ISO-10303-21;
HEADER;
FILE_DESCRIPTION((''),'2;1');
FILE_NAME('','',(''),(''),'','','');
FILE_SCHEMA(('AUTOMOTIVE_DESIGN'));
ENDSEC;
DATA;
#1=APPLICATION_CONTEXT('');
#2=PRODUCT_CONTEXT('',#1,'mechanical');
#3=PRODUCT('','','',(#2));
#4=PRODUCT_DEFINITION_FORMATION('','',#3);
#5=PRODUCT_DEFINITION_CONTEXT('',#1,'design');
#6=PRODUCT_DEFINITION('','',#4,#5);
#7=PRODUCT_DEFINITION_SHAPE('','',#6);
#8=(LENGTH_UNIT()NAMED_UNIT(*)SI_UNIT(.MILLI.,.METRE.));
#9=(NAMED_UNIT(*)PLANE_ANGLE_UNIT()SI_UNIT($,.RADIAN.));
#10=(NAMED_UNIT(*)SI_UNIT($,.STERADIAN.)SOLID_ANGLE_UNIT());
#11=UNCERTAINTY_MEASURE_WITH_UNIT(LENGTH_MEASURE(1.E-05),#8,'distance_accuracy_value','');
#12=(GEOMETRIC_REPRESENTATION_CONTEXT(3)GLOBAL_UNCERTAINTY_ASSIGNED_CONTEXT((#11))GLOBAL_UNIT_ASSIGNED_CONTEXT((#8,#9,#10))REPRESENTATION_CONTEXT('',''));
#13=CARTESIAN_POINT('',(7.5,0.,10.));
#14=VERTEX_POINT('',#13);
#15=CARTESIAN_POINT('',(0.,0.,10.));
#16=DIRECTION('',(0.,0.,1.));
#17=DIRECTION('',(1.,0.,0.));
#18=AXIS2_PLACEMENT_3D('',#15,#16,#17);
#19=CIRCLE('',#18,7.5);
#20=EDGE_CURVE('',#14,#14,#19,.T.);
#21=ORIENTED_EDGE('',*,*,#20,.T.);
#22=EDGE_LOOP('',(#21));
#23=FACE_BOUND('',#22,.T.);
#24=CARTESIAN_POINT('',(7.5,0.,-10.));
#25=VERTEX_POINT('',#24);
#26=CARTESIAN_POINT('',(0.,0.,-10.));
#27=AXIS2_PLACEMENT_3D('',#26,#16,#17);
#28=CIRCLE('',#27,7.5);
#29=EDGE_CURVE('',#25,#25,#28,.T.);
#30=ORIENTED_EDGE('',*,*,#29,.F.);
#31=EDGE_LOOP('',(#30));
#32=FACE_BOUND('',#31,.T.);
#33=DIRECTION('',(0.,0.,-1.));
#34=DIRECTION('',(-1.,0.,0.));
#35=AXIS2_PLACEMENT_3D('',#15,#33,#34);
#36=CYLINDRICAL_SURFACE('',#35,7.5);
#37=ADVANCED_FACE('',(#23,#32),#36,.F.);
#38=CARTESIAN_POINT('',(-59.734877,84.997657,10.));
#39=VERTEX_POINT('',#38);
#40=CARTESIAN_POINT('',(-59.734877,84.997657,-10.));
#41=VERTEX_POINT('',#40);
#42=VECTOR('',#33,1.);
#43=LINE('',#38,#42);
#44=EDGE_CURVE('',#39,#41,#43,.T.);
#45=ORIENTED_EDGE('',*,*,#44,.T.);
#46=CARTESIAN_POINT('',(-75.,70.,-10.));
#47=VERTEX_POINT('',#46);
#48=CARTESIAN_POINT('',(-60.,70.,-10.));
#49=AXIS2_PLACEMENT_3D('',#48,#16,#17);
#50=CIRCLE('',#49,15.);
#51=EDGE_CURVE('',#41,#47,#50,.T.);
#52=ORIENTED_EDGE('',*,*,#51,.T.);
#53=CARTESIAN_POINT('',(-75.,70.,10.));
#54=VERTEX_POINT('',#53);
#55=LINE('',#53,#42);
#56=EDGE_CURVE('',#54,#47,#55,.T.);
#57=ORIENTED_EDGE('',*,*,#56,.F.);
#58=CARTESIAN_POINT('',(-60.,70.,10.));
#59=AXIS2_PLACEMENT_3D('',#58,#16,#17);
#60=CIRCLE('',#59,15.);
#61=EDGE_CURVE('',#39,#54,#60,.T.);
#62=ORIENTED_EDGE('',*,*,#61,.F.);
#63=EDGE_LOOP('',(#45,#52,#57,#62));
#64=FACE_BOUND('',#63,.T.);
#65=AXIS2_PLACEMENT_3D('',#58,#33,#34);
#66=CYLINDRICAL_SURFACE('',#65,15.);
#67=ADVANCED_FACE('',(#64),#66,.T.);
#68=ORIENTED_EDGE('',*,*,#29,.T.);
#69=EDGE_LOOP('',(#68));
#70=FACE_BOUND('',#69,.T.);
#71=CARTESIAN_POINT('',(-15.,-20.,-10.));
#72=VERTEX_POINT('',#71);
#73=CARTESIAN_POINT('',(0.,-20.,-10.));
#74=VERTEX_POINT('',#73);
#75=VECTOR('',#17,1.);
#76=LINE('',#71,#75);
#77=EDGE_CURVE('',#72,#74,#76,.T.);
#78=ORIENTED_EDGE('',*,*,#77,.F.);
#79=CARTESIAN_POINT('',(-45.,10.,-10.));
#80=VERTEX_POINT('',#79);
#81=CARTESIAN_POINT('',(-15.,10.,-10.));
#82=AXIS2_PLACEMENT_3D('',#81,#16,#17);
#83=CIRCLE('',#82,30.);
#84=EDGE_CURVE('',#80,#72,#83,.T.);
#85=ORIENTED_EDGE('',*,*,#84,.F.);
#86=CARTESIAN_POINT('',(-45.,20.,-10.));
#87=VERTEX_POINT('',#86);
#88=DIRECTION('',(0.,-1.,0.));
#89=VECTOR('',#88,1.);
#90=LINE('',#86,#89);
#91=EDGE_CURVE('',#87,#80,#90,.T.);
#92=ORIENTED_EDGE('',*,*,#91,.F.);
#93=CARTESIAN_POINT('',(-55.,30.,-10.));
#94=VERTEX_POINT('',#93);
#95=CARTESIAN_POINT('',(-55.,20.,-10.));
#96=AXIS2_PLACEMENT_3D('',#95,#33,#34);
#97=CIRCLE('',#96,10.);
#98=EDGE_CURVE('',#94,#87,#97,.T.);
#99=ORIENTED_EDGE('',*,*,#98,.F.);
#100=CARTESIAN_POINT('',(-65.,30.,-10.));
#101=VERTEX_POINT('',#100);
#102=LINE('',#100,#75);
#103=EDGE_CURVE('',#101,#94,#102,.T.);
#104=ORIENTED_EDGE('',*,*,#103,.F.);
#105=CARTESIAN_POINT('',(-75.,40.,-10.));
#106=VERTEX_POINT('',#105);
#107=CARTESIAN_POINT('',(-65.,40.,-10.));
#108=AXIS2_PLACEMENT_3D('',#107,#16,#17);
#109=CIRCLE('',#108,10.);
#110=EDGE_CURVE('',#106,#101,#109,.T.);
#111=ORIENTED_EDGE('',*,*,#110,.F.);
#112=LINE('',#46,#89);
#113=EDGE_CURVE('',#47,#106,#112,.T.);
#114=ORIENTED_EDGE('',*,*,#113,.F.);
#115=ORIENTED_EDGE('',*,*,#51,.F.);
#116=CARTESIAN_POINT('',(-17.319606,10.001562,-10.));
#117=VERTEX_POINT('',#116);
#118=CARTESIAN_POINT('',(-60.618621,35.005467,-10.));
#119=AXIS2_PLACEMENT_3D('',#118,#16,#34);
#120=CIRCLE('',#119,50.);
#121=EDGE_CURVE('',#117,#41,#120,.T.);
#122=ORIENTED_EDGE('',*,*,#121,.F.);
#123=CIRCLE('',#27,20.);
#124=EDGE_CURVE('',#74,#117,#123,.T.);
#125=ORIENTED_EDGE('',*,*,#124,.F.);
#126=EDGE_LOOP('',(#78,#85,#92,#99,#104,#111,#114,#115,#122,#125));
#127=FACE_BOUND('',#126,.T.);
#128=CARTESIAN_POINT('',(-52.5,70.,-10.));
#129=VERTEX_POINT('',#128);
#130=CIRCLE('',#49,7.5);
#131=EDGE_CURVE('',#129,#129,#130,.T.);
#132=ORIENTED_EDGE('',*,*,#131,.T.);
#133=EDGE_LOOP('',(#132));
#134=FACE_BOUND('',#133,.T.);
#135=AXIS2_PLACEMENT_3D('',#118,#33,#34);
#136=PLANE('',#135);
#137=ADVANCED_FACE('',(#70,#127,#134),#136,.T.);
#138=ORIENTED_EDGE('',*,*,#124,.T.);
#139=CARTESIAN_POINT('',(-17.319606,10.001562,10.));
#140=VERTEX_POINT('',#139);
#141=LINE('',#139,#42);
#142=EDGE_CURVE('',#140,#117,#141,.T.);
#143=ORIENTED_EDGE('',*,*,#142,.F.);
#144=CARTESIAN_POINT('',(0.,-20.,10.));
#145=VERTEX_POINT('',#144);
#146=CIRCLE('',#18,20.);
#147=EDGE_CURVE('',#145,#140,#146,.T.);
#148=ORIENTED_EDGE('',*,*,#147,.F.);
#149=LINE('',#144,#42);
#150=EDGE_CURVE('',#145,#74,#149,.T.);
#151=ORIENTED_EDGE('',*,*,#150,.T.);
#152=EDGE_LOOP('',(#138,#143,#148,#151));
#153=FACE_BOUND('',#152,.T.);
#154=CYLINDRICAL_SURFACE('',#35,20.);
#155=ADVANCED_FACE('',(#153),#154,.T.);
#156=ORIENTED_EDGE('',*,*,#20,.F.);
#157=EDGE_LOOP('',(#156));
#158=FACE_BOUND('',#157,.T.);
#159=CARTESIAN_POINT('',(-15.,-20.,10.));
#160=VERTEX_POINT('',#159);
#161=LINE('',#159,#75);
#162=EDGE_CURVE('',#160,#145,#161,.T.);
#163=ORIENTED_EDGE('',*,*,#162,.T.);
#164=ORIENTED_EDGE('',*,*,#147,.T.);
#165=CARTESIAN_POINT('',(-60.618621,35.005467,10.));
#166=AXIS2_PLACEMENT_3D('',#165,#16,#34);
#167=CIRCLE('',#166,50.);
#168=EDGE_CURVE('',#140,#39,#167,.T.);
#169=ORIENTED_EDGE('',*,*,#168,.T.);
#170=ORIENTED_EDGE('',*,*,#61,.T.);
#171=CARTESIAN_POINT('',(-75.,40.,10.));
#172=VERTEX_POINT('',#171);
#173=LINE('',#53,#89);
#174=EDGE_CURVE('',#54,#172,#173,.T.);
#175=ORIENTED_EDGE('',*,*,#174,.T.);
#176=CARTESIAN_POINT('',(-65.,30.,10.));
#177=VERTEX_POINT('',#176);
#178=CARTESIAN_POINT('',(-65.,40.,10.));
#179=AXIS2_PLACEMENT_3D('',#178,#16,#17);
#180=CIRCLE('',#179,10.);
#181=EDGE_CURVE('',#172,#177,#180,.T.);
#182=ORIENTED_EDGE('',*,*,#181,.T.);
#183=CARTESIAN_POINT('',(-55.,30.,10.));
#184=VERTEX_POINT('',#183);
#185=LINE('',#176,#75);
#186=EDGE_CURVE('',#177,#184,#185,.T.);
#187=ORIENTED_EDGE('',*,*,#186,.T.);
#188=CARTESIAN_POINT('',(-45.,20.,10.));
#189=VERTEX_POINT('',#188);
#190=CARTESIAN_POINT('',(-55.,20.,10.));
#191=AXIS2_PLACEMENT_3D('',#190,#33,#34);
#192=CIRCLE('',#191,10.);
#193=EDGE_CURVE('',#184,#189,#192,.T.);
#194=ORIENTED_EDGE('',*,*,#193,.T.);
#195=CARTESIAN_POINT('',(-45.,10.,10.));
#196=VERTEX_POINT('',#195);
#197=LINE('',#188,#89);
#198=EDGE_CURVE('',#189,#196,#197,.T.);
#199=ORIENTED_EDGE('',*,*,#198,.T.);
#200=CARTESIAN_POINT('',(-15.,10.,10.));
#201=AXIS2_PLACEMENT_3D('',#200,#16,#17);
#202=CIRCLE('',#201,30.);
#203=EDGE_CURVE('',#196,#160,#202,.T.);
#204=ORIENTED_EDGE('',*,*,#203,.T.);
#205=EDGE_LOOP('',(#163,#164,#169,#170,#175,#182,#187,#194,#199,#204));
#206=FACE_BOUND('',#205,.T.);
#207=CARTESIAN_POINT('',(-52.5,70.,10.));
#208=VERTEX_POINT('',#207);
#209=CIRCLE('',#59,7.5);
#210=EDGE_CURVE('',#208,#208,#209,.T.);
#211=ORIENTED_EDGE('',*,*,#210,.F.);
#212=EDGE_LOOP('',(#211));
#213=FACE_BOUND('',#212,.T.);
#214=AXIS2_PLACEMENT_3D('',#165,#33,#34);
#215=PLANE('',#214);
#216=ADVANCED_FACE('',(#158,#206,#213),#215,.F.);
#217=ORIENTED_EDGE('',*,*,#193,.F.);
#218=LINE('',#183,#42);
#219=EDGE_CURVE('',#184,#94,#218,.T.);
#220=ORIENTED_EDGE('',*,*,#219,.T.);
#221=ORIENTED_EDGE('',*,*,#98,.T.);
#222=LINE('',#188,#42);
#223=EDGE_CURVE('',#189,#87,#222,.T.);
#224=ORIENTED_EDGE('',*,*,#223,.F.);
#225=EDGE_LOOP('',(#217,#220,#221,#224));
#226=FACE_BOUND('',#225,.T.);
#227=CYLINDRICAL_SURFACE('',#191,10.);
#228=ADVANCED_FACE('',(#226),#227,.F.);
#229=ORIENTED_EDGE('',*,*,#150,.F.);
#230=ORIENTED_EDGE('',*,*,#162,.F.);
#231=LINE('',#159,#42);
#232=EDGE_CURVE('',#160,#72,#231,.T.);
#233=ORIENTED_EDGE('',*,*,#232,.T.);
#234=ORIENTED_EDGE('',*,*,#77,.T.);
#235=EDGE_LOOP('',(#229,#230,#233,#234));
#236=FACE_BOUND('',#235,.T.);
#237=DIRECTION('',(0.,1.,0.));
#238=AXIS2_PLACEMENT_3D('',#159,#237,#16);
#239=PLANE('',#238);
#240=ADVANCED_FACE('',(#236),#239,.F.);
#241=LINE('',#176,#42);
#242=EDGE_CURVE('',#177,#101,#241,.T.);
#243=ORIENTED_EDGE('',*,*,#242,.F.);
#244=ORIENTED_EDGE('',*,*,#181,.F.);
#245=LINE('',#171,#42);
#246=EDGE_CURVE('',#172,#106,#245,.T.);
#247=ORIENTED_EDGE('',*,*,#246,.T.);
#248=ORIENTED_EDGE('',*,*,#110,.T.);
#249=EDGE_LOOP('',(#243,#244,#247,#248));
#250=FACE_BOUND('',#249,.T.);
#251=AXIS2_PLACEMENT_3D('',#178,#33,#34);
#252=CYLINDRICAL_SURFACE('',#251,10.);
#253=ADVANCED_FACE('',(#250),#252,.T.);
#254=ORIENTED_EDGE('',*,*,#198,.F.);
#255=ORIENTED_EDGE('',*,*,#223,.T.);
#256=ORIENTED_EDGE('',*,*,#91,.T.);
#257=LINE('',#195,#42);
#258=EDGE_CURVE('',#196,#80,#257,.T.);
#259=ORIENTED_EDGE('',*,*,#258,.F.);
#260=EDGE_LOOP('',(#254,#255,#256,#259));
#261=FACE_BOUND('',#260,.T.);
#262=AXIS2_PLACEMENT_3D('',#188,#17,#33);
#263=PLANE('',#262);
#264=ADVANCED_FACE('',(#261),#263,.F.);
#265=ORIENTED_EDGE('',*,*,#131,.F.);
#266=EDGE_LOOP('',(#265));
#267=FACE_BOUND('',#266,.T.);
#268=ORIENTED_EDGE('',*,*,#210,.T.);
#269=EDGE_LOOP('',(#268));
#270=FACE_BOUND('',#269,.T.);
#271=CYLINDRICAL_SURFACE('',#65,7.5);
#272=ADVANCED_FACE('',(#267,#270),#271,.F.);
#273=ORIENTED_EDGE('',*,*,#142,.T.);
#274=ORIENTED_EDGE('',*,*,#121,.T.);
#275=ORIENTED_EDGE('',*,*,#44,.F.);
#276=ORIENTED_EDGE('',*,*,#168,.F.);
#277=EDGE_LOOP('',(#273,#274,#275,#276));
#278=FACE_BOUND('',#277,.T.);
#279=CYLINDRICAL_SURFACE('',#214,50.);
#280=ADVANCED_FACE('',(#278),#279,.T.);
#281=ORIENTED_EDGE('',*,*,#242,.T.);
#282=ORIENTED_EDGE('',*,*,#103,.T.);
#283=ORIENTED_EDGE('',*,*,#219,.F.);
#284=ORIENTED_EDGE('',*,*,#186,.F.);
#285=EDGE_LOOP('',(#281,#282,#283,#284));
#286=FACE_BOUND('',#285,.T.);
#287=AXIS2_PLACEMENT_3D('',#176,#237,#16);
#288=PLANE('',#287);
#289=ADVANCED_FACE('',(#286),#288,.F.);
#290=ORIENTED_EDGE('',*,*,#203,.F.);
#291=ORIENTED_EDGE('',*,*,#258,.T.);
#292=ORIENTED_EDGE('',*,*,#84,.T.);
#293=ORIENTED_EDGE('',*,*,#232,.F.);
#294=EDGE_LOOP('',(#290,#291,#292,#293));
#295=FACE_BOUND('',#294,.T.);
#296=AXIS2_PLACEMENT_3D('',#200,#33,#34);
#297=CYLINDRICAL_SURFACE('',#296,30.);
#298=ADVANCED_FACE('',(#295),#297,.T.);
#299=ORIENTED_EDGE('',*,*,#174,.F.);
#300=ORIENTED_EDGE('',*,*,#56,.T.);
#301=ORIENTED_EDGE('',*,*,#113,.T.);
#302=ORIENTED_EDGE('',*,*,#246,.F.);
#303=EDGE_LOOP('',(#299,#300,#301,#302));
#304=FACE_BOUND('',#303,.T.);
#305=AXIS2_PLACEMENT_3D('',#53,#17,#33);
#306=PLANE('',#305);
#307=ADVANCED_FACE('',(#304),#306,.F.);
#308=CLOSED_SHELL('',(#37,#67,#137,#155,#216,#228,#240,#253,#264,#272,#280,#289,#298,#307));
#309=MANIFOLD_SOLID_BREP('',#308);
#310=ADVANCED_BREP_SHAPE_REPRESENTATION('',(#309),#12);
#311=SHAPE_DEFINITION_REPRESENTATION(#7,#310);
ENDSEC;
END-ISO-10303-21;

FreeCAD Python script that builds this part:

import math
import FreeCAD as App
import Part
import Sketcher
from FreeCAD import Vector

doc = App.newDocument("Part")
body = doc.addObject("PartDesign::Body", "Body")

# Sketch on XY plane
sketch1 = body.newObject("Sketcher::SketchObject", "Sketch")
sketch1.AttachmentSupport = (doc.getObject("XY_Plane"), [""])
sketch1.MapMode = "FlatFace"
sketch1.addGeometry(Part.LineSegment(Vector(-75, 70, 0), Vector(-75, 40, 0)), False)
sketch1.addGeometry(Part.ArcOfCircle(Part.Circle(Vector(-65, 40, 0), Vector(0, 0, 1), 10), math.radians(180), math.radians(270)), False)
sketch1.addGeometry(Part.LineSegment(Vector(-65, 30, 0), Vector(-55, 30, 0)), False)
sketch1.addGeometry(Part.ArcOfCircle(Part.Circle(Vector(-55, 20, 0), Vector(0, 0, 1), 10), math.radians(0), math.radians(90)), False)
sketch1.addGeometry(Part.LineSegment(Vector(-45, 20, 0), Vector(-45, 10, 0)), False)
sketch1.addGeometry(Part.ArcOfCircle(Part.Circle(Vector(-15, 10, 0), Vector(0, 0, 1), 30), math.radians(180), math.radians(270)), False)
sketch1.addGeometry(Part.LineSegment(Vector(-15, -20, 0), Vector(0, -20, 0)), False)
sketch1.addGeometry(Part.ArcOfCircle(Part.Circle(Vector(0, 0, 0), Vector(0, 0, 1), 20), math.radians(-90), math.radians(150)), False)
sketch1.addGeometry(Part.ArcOfCircle(Part.Circle(Vector(-61, 35, 0), Vector(0, 0, 1), 50), math.radians(-30), math.radians(89)), False)
sketch1.addGeometry(Part.ArcOfCircle(Part.Circle(Vector(-60, 70, 0), Vector(0, 0, 1), 15), math.radians(89), math.radians(180)), False)
sketch1.addGeometry(Part.Circle(Vector(0, 0, 0), Vector(0, 0, 1), 8), False)
sketch1.addGeometry(Part.Circle(Vector(-60, 70, 0), Vector(0, 0, 1), 8), False)
sketch1.addConstraint(Sketcher.Constraint("Tangent", 0, 2, 1, 1))
sketch1.addConstraint(Sketcher.Constraint("Tangent", 1, 2, 2, 1))
sketch1.addConstraint(Sketcher.Constraint("Tangent", 2, 2, 3, 2))
sketch1.addConstraint(Sketcher.Constraint("Tangent", 3, 1, 4, 1))
sketch1.addConstraint(Sketcher.Constraint("Tangent", 4, 2, 5, 1))
sketch1.addConstraint(Sketcher.Constraint("Tangent", 5, 2, 6, 1))
sketch1.addConstraint(Sketcher.Constraint("Tangent", 6, 2, 7, 1))
sketch1.addConstraint(Sketcher.Constraint("Tangent", 7, 2, 8, 1))
sketch1.addConstraint(Sketcher.Constraint("Tangent", 8, 2, 9, 1))
sketch1.addConstraint(Sketcher.Constraint("Tangent", 9, 2, 0, 1))
sketch1.addConstraint(Sketcher.Constraint("Vertical", 0))
sketch1.addConstraint(Sketcher.Constraint("Horizontal", 2))
sketch1.addConstraint(Sketcher.Constraint("Vertical", 4))
sketch1.addConstraint(Sketcher.Constraint("Horizontal", 6))
sketch1.addConstraint(Sketcher.Constraint("Coincident", 7, 3, -1, 1))
sketch1.addConstraint(Sketcher.Constraint("Coincident", 10, 3, -1, 1))
sketch1.addConstraint(Sketcher.Constraint("Coincident", 11, 3, 9, 3))
sketch1.addConstraint(Sketcher.Constraint("Equal", 1, 3))
sketch1.addConstraint(Sketcher.Constraint("Equal", 10, 11))
sketch1.addConstraint(Sketcher.Constraint("Equal", 2, 4))
sketch1.addConstraint(Sketcher.Constraint("Diameter", 10, 15.0))
sketch1.addConstraint(Sketcher.Constraint("Radius", 1, 10.0))
sketch1.addConstraint(Sketcher.Constraint("Radius", 5, 30.0))
sketch1.addConstraint(Sketcher.Constraint("Radius", 7, 20.0))
sketch1.addConstraint(Sketcher.Constraint("Radius", 8, 50.0))
sketch1.addConstraint(Sketcher.Constraint("Radius", 9, 15.0))
sketch1.addConstraint(Sketcher.Constraint("DistanceX", 2, 1, 2, 2, 10.0))
sketch1.addConstraint(Sketcher.Constraint("DistanceX", 6, 1, 6, 2, 15.0))
sketch1.addConstraint(Sketcher.Constraint("DistanceY", 0, 2, 0, 1, 30.0))
pad1 = body.newObject("PartDesign::Pad", "Pad")
pad1.Profile = sketch1
pad1.Length = 20
pad1.Midplane = True

doc.recompute()
